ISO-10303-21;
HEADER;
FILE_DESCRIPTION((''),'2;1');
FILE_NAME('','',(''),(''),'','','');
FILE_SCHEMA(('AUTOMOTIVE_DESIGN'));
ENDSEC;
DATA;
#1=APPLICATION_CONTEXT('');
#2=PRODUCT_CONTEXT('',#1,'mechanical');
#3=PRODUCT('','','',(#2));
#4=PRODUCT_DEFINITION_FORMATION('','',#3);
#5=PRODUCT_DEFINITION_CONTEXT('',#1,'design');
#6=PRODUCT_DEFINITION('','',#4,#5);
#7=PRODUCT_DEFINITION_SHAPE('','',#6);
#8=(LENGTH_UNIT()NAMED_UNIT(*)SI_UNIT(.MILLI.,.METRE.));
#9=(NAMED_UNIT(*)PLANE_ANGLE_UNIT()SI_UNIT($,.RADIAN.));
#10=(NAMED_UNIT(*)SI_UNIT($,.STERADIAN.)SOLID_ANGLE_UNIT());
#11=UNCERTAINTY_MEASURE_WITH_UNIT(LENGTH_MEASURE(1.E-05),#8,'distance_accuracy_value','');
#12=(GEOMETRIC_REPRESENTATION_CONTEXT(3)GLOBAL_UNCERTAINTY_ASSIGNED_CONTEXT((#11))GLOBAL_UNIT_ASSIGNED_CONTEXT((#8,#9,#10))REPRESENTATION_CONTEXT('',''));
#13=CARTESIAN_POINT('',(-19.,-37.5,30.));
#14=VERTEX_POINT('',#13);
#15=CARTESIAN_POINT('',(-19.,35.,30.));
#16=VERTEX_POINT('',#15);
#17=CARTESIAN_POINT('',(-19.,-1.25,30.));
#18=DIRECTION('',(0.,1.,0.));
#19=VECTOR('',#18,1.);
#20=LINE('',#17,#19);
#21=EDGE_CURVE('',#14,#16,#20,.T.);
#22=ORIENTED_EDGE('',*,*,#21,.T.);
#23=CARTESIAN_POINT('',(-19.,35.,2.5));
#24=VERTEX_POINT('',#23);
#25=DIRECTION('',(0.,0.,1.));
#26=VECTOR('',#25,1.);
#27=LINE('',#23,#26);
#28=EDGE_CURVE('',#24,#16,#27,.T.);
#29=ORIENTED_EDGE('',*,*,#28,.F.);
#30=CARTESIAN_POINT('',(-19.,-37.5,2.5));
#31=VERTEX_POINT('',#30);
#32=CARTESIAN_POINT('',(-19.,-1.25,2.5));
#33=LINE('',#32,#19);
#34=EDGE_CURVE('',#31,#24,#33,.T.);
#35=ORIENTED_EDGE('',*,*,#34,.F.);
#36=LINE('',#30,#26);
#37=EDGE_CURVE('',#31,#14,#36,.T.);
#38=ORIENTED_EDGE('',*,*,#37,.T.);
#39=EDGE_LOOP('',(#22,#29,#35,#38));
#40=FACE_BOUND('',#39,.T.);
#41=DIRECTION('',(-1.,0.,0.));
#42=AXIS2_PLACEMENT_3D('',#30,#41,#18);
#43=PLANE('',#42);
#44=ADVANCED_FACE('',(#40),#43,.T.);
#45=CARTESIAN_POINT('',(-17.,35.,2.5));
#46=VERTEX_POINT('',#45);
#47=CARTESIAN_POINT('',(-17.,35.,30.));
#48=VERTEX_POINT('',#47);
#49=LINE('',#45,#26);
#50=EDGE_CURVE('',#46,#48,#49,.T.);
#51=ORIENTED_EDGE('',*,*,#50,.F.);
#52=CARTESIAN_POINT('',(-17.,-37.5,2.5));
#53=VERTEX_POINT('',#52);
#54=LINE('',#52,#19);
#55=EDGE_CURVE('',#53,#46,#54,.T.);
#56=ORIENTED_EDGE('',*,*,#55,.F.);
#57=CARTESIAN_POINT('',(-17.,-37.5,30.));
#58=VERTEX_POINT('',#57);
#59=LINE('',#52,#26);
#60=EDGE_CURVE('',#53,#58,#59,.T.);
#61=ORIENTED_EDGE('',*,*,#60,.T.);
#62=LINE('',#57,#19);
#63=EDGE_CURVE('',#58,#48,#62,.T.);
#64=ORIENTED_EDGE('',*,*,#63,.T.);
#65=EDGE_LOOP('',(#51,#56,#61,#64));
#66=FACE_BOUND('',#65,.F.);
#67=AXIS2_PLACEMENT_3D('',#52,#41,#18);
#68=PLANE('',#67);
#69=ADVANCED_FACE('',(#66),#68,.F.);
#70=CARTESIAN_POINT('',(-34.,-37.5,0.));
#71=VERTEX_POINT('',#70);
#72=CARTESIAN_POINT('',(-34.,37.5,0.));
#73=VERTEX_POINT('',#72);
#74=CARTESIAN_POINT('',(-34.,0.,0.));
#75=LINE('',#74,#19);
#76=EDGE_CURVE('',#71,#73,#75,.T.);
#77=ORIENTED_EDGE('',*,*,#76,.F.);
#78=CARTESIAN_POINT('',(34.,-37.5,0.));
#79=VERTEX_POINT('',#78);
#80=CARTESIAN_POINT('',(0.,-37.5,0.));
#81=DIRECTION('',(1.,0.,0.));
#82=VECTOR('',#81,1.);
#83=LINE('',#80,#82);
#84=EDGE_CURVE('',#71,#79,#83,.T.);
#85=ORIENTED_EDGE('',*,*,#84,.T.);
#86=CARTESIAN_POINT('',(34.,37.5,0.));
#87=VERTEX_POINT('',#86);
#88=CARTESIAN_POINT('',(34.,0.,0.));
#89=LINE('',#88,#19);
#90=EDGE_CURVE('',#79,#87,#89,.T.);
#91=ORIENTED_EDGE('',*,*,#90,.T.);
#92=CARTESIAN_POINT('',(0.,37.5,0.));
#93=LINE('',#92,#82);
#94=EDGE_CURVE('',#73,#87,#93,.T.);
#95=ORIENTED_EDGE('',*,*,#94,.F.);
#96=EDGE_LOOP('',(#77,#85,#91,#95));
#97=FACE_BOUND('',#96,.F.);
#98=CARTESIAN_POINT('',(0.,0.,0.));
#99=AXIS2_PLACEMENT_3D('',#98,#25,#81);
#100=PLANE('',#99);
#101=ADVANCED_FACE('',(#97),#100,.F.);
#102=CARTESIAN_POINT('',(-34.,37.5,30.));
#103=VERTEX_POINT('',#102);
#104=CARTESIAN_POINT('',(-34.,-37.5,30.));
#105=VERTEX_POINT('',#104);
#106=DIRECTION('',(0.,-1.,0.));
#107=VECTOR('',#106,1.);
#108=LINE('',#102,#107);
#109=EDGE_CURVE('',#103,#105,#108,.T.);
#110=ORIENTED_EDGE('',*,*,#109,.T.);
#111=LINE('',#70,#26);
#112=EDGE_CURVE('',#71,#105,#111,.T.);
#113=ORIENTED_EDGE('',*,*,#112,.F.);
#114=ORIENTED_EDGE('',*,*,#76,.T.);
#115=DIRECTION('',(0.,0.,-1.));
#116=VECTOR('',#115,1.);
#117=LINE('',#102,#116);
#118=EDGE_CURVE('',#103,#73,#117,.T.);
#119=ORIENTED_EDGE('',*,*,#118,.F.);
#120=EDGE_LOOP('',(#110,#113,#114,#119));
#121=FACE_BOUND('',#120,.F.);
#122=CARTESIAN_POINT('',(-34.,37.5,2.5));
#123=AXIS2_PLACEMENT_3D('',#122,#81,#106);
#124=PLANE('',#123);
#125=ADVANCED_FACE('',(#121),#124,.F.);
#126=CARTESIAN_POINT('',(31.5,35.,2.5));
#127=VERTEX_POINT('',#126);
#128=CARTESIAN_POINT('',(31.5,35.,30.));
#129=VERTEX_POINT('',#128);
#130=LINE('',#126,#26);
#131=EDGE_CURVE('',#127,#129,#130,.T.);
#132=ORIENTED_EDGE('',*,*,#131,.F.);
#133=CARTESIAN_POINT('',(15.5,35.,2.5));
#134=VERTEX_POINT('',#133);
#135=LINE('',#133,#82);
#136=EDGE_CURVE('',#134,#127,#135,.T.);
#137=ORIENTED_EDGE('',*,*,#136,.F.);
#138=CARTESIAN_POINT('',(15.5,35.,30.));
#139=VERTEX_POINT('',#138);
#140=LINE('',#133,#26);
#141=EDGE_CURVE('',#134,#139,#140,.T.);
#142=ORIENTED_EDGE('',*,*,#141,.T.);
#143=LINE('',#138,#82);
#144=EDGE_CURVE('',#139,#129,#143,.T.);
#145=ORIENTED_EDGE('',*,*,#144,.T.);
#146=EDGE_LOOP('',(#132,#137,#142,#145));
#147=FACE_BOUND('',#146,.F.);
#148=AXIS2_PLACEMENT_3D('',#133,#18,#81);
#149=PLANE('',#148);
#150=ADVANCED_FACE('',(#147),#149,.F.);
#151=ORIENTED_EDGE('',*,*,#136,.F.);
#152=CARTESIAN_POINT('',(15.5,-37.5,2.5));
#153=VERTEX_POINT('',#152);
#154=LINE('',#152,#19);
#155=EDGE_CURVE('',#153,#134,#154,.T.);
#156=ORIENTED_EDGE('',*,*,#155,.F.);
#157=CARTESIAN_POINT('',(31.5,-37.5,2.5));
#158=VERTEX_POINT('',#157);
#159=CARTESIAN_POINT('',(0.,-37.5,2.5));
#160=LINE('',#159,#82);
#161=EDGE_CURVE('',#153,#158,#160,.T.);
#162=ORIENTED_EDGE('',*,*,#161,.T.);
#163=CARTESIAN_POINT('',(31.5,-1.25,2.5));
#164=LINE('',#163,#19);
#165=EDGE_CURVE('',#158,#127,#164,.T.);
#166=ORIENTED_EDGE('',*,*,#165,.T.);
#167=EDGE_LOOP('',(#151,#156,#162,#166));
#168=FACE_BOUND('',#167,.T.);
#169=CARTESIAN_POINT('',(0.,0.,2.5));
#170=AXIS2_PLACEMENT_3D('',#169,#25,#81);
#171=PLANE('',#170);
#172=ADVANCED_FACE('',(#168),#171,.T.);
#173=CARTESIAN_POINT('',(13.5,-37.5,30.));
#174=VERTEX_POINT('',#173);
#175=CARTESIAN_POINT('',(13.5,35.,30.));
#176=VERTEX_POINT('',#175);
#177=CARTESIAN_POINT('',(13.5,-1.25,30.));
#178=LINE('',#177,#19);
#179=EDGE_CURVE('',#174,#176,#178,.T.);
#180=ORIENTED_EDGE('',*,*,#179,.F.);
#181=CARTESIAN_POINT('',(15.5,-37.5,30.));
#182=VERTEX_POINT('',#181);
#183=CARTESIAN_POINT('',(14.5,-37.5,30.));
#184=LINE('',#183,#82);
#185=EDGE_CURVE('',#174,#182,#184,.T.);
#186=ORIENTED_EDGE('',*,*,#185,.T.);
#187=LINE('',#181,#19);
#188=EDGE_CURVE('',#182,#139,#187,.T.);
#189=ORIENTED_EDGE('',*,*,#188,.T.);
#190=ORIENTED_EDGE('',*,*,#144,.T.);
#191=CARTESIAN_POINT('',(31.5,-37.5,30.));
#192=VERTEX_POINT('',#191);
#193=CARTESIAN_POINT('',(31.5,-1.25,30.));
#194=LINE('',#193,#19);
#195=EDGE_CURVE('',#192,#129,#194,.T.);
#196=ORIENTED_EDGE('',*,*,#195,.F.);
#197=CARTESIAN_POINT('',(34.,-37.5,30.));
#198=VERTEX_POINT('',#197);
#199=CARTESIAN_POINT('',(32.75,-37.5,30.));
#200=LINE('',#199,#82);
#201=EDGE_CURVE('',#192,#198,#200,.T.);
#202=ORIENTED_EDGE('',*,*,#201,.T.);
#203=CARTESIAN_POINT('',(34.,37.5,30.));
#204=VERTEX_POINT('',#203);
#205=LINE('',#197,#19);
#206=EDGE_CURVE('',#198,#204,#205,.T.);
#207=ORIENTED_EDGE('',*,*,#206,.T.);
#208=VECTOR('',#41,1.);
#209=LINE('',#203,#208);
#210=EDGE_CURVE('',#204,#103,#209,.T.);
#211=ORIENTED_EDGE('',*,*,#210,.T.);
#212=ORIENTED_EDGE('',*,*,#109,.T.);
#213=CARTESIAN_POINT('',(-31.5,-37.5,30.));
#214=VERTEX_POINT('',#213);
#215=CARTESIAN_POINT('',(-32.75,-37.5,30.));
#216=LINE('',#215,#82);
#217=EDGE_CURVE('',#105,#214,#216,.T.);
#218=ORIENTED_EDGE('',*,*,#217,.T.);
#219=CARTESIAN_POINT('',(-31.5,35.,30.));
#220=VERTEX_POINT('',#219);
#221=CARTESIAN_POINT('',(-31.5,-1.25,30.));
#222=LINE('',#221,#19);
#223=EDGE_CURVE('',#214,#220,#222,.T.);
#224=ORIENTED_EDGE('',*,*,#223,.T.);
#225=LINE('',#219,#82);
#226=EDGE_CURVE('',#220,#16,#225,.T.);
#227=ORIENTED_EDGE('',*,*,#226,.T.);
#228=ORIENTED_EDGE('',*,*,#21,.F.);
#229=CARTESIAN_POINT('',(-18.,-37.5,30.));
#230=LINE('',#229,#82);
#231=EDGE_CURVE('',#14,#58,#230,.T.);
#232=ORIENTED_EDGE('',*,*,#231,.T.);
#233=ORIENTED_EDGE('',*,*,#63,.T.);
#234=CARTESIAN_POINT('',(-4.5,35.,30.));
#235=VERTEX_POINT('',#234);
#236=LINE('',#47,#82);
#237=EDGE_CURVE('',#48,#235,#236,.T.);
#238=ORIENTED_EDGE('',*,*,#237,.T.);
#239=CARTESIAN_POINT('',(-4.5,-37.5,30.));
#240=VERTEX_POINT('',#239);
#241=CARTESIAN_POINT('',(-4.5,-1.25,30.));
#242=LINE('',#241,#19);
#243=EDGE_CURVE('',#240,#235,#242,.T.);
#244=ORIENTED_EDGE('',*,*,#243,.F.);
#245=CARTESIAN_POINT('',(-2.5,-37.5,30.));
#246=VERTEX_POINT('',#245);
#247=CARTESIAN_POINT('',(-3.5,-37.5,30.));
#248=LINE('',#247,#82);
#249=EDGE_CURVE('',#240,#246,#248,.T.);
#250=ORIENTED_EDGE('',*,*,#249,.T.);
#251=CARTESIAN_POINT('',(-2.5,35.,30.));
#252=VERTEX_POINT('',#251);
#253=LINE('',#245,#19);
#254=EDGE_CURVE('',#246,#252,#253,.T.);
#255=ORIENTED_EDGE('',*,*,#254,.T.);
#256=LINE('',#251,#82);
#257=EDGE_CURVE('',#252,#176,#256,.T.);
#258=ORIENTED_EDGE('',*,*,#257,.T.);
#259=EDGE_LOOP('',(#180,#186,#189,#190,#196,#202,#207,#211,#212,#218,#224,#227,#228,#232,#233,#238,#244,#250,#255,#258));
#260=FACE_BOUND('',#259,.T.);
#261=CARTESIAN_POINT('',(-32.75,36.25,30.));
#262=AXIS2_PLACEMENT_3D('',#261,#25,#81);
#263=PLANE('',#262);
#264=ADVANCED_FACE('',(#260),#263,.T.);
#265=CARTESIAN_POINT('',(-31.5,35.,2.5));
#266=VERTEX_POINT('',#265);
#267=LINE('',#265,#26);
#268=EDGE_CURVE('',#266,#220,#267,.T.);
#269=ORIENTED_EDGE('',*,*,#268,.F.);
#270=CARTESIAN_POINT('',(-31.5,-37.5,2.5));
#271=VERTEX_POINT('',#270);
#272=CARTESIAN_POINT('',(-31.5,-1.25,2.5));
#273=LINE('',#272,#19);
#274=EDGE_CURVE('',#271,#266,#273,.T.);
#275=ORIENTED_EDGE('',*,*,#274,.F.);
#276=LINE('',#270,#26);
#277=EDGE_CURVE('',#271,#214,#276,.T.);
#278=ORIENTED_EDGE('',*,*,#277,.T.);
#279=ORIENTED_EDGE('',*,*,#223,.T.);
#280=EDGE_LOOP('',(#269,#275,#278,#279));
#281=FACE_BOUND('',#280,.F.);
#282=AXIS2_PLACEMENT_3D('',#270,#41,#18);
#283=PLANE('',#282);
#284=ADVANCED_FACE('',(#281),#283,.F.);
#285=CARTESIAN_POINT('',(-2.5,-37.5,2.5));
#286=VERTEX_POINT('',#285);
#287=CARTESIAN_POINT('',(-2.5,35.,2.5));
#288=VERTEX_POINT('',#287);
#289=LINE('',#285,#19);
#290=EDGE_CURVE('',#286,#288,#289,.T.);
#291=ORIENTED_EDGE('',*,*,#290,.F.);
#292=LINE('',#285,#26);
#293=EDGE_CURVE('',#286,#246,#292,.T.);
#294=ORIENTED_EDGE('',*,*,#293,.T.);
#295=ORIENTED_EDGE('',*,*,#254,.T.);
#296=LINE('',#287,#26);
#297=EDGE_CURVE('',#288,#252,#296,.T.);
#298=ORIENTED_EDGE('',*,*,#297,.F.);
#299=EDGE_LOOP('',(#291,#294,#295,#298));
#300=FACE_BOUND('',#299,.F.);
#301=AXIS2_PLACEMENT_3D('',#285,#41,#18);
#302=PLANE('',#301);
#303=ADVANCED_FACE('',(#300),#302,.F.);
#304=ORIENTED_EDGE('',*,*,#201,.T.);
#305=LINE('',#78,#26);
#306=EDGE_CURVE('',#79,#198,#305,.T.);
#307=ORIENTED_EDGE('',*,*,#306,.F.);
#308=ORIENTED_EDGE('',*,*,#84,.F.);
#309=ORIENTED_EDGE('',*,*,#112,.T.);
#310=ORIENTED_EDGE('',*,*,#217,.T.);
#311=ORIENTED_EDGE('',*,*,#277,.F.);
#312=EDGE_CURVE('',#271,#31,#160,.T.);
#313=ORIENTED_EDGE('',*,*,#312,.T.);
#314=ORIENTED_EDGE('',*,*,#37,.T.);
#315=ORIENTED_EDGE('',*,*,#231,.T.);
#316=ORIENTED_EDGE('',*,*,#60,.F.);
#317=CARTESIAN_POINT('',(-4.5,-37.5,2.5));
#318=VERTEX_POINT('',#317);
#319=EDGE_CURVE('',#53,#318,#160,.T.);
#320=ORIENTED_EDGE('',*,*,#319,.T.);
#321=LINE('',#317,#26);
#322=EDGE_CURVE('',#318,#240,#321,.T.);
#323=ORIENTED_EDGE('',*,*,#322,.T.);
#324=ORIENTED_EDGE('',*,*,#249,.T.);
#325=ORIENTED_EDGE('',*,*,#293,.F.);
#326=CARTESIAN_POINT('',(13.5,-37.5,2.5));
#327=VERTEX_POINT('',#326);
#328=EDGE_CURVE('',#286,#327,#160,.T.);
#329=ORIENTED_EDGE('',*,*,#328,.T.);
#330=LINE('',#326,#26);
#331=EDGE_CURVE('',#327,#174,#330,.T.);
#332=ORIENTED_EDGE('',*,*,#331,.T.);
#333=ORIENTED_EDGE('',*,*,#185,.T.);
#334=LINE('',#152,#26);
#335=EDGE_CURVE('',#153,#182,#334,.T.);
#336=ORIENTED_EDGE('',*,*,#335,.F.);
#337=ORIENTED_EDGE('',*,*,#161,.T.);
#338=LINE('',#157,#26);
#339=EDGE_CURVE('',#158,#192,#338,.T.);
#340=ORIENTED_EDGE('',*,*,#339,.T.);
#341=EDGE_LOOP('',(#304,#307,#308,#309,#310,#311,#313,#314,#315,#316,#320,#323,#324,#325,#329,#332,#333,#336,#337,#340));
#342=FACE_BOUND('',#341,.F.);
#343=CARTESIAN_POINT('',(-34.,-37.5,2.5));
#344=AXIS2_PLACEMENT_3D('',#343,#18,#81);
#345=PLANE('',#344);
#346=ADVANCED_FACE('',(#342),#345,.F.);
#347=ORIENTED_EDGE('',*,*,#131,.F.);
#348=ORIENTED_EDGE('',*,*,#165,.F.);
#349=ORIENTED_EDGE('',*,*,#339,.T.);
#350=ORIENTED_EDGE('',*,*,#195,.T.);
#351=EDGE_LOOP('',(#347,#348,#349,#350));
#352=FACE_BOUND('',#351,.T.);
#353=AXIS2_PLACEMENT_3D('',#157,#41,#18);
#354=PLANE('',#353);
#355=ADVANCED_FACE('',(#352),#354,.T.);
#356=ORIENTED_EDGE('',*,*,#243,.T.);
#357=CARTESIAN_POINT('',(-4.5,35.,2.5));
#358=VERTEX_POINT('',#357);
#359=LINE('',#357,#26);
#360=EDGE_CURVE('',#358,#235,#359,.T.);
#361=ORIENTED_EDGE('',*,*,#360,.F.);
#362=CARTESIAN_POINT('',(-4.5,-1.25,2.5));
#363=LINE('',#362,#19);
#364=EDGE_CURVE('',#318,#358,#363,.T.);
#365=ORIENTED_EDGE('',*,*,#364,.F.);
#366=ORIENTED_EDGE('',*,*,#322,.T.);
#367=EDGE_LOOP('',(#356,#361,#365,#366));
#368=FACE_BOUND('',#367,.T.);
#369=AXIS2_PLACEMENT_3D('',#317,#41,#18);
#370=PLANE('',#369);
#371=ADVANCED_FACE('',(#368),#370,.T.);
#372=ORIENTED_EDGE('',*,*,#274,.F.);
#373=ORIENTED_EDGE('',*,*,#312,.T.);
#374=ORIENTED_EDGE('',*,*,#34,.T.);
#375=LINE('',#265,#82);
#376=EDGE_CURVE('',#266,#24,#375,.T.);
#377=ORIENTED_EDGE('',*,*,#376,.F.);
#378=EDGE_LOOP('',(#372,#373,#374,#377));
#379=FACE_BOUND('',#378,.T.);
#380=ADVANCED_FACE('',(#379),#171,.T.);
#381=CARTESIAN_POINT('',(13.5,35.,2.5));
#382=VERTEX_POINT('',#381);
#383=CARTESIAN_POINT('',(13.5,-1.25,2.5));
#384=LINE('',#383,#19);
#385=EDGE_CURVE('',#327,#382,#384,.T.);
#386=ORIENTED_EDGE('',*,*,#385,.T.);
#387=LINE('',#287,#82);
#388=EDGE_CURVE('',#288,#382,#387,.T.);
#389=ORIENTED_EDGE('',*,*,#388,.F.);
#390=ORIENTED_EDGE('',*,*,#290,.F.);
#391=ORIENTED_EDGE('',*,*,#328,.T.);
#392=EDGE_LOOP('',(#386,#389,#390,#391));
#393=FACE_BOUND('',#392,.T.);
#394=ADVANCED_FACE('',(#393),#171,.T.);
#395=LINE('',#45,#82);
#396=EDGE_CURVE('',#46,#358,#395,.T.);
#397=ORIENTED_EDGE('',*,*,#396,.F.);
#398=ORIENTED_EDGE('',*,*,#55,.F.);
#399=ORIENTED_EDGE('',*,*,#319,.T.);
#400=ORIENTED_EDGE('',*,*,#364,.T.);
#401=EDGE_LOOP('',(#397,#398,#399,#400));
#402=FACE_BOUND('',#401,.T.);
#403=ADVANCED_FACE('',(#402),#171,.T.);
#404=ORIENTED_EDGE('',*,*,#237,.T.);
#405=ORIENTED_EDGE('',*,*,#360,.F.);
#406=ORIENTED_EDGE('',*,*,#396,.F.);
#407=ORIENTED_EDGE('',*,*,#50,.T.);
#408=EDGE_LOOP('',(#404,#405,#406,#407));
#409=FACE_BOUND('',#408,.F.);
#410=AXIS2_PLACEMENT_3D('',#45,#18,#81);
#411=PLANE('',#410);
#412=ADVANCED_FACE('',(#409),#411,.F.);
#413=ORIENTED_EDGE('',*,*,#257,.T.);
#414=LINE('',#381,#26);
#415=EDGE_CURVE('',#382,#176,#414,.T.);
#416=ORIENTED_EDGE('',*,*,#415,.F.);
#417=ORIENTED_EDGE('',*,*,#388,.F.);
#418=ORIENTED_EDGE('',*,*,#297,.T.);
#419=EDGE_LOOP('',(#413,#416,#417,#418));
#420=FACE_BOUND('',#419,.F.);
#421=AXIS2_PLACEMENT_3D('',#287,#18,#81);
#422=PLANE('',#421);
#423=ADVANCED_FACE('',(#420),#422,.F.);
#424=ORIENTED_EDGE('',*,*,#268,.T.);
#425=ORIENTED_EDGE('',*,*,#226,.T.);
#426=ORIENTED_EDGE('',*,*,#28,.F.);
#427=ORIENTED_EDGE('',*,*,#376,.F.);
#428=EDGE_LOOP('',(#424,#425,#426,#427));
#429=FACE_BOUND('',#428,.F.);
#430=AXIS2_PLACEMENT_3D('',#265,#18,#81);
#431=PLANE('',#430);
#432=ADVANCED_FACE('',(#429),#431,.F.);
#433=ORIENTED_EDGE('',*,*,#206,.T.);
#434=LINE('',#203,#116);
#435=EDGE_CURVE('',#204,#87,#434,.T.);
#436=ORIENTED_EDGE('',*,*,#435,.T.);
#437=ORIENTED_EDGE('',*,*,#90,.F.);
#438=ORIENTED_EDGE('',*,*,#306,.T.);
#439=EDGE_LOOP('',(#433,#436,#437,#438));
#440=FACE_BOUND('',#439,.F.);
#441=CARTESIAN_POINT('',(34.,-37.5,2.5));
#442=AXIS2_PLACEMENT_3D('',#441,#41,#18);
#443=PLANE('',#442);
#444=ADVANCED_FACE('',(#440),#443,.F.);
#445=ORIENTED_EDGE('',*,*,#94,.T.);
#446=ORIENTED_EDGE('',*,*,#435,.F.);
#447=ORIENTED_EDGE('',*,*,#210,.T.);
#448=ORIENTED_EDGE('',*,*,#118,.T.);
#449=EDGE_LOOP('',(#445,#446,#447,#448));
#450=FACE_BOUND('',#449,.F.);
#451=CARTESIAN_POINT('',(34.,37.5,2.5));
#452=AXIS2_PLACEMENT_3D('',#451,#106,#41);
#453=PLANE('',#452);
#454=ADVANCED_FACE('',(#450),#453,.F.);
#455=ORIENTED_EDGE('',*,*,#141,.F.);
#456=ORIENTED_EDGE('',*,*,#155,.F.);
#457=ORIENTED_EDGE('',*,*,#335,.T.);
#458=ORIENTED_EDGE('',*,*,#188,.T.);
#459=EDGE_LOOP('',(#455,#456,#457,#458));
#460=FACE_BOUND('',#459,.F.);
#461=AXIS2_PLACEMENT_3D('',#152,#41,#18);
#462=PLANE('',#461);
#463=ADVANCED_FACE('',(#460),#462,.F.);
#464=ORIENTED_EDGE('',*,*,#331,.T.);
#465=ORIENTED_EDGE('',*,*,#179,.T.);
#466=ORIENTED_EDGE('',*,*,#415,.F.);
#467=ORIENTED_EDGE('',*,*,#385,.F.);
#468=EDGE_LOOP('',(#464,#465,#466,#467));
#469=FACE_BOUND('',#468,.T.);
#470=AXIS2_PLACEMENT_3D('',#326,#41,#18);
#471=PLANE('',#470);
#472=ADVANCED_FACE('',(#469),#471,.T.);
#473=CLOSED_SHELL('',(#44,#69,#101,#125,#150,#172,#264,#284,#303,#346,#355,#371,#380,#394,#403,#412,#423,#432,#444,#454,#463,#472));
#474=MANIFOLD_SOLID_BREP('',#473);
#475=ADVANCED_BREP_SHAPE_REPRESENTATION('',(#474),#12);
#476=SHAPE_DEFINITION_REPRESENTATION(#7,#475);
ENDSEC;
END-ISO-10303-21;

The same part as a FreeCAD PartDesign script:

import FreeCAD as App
import Part
import Sketcher
from FreeCAD import Vector
Q = App.Units.Quantity


def add_polygon(sketch, points):
    """Adds a closed chain of lines whose ends are joined by coincident constraints."""
    first, n = sketch.GeometryCount, len(points)
    for a, b in zip(points, points[1:] + points[:1]):
        sketch.addGeometry(Part.LineSegment(App.Vector(*a, 0), App.Vector(*b, 0)), False)
    for i in range(n):
        sketch.addConstraint(Sketcher.Constraint("Coincident", first + i, 2, first + (i + 1) % n, 1))

doc = App.newDocument("Part")
body = doc.addObject("PartDesign::Body", "Body")

# Sketch on XY plane
sketch1 = body.newObject("Sketcher::SketchObject", "Sketch")
sketch1.AttachmentSupport = (doc.getObject("XY_Plane"), [""])
sketch1.MapMode = "FlatFace"
add_polygon(sketch1, [(-34, 38), (-34, -38), (34, -38), (34, 38)])  # lines 0-3
sketch1.addConstraint(Sketcher.Constraint("Vertical", 0))
sketch1.addConstraint(Sketcher.Constraint("Horizontal", 1))
sketch1.addConstraint(Sketcher.Constraint("Vertical", 2))
sketch1.addConstraint(Sketcher.Constraint("Horizontal", 3))
sketch1.addConstraint(Sketcher.Constraint("Symmetric", 0, 2, 2, 2, -1, 1))
sketch1.addConstraint(Sketcher.Constraint("DistanceX", 1, 1, 1, 2, Q("68 mm")))
sketch1.addConstraint(Sketcher.Constraint("DistanceY", 0, 2, 0, 1, Q("75 mm")))
pad1 = body.newObject("PartDesign::Pad", "Pad")
pad1.Profile = sketch1
pad1.Length = 2.5

# Sketch on XY plane
sketch2 = body.newObject("Sketcher::SketchObject", "Sketch001")
sketch2.AttachmentSupport = (doc.getObject("XY_Plane"), [""])
sketch2.MapMode = "FlatFace"
sketch2.AttachmentOffset = App.Placement(Vector(0, 0, 2.5), App.Rotation())
add_polygon(sketch2, [(-34, 37.5), (-34, -37.5), (-31.5, -37.5), (-31.5, 35), (-19, 35), (-19, -37.5), (-17, -37.5), (-17, 35), (-4.5, 35), (-4.5, -37.5), (-2.5, -37.5), (-2.5, 35), (13.5, 35), (13.5, -37.5), (15.5, -37.5), (15.5, 35), (31.5, 35), (31.5, -37.5), (34, -37.5), (34, 37.5)])  # lines 0-19
sketch2.addConstraint(Sketcher.Constraint("Vertical", 0))
sketch2.addConstraint(Sketcher.Constraint("Horizontal", 1))
sketch2.addConstraint(Sketcher.Constraint("Vertical", 2))
sketch2.addConstraint(Sketcher.Constraint("Horizontal", 3))
sketch2.addConstraint(Sketcher.Constraint("Vertical", 4))
sketch2.addConstraint(Sketcher.Constraint("Horizontal", 5))
sketch2.addConstraint(Sketcher.Constraint("Vertical", 6))
sketch2.addConstraint(Sketcher.Constraint("Horizontal", 7))
sketch2.addConstraint(Sketcher.Constraint("Vertical", 8))
sketch2.addConstraint(Sketcher.Constraint("Horizontal", 9))
sketch2.addConstraint(Sketcher.Constraint("Vertical", 10))
sketch2.addConstraint(Sketcher.Constraint("Horizontal", 11))
sketch2.addConstraint(Sketcher.Constraint("Vertical", 12))
sketch2.addConstraint(Sketcher.Constraint("Horizontal", 13))
sketch2.addConstraint(Sketcher.Constraint("Vertical", 14))
sketch2.addConstraint(Sketcher.Constraint("Horizontal", 15))
sketch2.addConstraint(Sketcher.Constraint("Vertical", 16))
sketch2.addConstraint(Sketcher.Constraint("Horizontal", 17))
sketch2.addConstraint(Sketcher.Constraint("Vertical", 18))
sketch2.addConstraint(Sketcher.Constraint("Horizontal", 19))
sketch2.addConstraint(Sketcher.Constraint("Symmetric", 0, 2, 18, 2, -1, 1))
sketch2.addConstraint(Sketcher.Constraint("Symmetric", 2, 2, 15, 2, -2))
sketch2.addConstraint(Sketcher.Constraint("Horizontal", 1, 2, 4, 2))
sketch2.addConstraint(Sketcher.Constraint("Horizontal", 3, 2, 6, 2))
sketch2.addConstraint(Sketcher.Constraint("Horizontal", 5, 2, 8, 2))
sketch2.addConstraint(Sketcher.Constraint("Horizontal", 7, 2, 10, 2))
sketch2.addConstraint(Sketcher.Constraint("Horizontal", 9, 2, 12, 2))
sketch2.addConstraint(Sketcher.Constraint("Horizontal", 13, 2, 16, 2))
sketch2.addConstraint(Sketcher.Constraint("Equal", 3, 7))
sketch2.addConstraint(Sketcher.Constraint("Equal", 5, 9))
sketch2.addConstraint(Sketcher.Constraint("Equal", 9, 13))
sketch2.addConstraint(Sketcher.Constraint("Equal", 11, 15))
sketch2.addConstraint(Sketcher.Constraint("DistanceX", 5, 1, 5, 2, Q("2 mm")))
sketch2.addConstraint(Sketcher.Constraint("DistanceX", 11, 1, 11, 2, Q("16 mm")))
sketch2.addConstraint(Sketcher.Constraint("DistanceX", 19, 2, 19, 1, Q("68 mm")))
sketch2.addConstraint(Sketcher.Constraint("DistanceY", 0, 2, 0, 1, Q("75 mm")))
sketch2.addConstraint(Sketcher.Constraint("DistanceX", 1, 1, 1, 2, Q("2.5 mm")))
sketch2.addConstraint(Sketcher.Constraint("DistanceY", 2, 1, 2, 2, Q("72.5 mm")))
pad2 = body.newObject("PartDesign::Pad", "Pad001")
pad2.Profile = sketch2
pad2.Length = 27.5

doc.recompute()
